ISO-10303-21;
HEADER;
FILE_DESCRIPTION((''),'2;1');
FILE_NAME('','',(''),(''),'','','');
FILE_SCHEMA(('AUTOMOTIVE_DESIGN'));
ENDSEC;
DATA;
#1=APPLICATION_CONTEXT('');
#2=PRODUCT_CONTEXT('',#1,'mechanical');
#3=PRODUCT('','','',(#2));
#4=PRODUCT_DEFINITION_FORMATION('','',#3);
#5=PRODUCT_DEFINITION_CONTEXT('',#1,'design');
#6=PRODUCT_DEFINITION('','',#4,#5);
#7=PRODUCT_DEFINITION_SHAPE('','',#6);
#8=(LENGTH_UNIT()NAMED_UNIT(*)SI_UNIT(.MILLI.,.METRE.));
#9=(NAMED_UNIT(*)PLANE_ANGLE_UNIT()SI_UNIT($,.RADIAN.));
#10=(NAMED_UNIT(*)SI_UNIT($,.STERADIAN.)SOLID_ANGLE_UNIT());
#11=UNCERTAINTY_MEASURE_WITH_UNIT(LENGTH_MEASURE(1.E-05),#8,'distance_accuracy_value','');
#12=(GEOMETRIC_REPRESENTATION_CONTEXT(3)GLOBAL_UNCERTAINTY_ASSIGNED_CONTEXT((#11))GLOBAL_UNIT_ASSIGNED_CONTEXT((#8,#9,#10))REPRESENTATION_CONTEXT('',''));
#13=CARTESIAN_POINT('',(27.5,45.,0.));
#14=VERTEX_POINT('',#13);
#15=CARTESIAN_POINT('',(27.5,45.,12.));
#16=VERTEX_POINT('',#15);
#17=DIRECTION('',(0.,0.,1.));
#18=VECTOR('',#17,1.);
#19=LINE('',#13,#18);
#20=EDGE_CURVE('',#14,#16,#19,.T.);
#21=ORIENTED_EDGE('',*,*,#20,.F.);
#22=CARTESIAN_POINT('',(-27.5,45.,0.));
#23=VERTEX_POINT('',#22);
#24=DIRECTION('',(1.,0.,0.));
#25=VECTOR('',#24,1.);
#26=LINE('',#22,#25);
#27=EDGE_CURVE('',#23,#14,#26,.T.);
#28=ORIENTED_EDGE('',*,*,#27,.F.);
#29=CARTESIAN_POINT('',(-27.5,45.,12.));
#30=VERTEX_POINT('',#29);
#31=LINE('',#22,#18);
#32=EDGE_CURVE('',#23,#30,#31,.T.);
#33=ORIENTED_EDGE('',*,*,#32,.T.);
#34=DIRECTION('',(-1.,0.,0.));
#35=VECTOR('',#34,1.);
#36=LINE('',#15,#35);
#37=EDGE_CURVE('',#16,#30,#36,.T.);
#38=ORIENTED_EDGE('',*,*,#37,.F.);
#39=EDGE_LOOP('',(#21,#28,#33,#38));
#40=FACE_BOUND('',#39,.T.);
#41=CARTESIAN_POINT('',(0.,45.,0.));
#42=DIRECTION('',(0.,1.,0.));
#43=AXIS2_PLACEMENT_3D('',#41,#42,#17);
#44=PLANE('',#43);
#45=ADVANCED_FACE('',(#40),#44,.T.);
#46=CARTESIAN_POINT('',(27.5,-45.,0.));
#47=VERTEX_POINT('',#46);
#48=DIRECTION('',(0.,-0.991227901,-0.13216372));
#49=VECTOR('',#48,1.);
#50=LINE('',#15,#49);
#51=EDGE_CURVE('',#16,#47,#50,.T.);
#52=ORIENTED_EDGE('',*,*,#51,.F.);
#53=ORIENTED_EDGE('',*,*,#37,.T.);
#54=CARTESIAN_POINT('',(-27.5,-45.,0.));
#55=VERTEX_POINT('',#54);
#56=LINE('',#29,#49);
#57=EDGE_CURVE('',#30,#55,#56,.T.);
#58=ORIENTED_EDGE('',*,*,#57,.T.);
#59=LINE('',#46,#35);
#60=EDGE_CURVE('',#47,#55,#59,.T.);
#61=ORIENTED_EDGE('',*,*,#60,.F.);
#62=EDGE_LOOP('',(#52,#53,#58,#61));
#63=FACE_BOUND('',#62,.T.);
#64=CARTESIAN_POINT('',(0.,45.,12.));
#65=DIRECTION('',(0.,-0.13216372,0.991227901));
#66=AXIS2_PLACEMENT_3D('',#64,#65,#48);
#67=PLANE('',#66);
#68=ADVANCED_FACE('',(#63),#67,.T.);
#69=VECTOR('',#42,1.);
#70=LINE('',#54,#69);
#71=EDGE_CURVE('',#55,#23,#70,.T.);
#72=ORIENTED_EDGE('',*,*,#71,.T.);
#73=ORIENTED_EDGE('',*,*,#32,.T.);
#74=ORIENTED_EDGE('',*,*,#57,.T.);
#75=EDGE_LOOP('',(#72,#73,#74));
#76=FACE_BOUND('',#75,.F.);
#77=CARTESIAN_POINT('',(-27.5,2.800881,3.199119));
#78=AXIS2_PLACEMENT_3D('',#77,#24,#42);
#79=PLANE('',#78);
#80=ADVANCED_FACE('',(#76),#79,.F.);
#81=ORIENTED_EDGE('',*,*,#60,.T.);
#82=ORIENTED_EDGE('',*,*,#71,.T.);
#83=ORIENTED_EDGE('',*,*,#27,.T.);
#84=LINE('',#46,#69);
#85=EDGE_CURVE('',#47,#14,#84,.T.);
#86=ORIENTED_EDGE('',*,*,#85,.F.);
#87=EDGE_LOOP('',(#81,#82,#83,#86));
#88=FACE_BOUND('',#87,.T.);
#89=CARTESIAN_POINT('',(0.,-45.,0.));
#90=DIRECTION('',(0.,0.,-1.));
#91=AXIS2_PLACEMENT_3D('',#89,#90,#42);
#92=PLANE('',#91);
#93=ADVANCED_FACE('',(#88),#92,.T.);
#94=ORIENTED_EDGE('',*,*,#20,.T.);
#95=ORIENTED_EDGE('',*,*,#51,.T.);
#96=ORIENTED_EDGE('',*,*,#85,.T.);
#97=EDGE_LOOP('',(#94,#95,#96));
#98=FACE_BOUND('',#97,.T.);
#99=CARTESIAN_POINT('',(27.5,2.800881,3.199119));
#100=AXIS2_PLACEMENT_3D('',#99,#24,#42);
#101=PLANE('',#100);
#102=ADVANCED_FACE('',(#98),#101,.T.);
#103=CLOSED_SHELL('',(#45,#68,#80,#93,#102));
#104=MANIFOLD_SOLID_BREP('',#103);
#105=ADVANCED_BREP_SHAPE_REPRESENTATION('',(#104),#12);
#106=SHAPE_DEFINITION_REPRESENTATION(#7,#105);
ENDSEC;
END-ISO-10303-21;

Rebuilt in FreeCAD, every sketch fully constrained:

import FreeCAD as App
import Part
import Sketcher

V = App.Vector
Q = App.Units.Quantity

doc = App.newDocument("Part")
body = doc.addObject("PartDesign::Body", "Body")

# Sketch on YZ plane
sketch1 = body.newObject("Sketcher::SketchObject", "Sketch")
sketch1.AttachmentSupport = (doc.getObject("YZ_Plane"), [""])
sketch1.MapMode = "FlatFace"
sketch1.addGeometry(Part.LineSegment(V(-45, 0, 0), V(45, 0, 0)), False)
sketch1.addGeometry(Part.LineSegment(V(45, 0, 0), V(45, 12, 0)), False)
sketch1.addGeometry(Part.LineSegment(V(45, 12, 0), V(-45, 0, 0)), False)
sketch1.addConstraint(Sketcher.Constraint("Coincident", 0, 2, 1, 1))
sketch1.addConstraint(Sketcher.Constraint("Coincident", 1, 2, 2, 1))
sketch1.addConstraint(Sketcher.Constraint("Coincident", 2, 2, 0, 1))
sketch1.addConstraint(Sketcher.Constraint("Horizontal", 0))
sketch1.addConstraint(Sketcher.Constraint("Vertical", 1))
sketch1.addConstraint(Sketcher.Constraint("Symmetric", 0, 2, 2, 2, -1, 1))
sketch1.addConstraint(Sketcher.Constraint("DistanceX", 0, 1, 0, 2, Q("90 mm")))
sketch1.addConstraint(Sketcher.Constraint("DistanceY", 1, 1, 1, 2, Q("12 mm")))
pad1 = body.newObject("PartDesign::Pad", "Pad")
pad1.Profile = sketch1
pad1.Length = 55
pad1.Midplane = True

doc.recompute()
